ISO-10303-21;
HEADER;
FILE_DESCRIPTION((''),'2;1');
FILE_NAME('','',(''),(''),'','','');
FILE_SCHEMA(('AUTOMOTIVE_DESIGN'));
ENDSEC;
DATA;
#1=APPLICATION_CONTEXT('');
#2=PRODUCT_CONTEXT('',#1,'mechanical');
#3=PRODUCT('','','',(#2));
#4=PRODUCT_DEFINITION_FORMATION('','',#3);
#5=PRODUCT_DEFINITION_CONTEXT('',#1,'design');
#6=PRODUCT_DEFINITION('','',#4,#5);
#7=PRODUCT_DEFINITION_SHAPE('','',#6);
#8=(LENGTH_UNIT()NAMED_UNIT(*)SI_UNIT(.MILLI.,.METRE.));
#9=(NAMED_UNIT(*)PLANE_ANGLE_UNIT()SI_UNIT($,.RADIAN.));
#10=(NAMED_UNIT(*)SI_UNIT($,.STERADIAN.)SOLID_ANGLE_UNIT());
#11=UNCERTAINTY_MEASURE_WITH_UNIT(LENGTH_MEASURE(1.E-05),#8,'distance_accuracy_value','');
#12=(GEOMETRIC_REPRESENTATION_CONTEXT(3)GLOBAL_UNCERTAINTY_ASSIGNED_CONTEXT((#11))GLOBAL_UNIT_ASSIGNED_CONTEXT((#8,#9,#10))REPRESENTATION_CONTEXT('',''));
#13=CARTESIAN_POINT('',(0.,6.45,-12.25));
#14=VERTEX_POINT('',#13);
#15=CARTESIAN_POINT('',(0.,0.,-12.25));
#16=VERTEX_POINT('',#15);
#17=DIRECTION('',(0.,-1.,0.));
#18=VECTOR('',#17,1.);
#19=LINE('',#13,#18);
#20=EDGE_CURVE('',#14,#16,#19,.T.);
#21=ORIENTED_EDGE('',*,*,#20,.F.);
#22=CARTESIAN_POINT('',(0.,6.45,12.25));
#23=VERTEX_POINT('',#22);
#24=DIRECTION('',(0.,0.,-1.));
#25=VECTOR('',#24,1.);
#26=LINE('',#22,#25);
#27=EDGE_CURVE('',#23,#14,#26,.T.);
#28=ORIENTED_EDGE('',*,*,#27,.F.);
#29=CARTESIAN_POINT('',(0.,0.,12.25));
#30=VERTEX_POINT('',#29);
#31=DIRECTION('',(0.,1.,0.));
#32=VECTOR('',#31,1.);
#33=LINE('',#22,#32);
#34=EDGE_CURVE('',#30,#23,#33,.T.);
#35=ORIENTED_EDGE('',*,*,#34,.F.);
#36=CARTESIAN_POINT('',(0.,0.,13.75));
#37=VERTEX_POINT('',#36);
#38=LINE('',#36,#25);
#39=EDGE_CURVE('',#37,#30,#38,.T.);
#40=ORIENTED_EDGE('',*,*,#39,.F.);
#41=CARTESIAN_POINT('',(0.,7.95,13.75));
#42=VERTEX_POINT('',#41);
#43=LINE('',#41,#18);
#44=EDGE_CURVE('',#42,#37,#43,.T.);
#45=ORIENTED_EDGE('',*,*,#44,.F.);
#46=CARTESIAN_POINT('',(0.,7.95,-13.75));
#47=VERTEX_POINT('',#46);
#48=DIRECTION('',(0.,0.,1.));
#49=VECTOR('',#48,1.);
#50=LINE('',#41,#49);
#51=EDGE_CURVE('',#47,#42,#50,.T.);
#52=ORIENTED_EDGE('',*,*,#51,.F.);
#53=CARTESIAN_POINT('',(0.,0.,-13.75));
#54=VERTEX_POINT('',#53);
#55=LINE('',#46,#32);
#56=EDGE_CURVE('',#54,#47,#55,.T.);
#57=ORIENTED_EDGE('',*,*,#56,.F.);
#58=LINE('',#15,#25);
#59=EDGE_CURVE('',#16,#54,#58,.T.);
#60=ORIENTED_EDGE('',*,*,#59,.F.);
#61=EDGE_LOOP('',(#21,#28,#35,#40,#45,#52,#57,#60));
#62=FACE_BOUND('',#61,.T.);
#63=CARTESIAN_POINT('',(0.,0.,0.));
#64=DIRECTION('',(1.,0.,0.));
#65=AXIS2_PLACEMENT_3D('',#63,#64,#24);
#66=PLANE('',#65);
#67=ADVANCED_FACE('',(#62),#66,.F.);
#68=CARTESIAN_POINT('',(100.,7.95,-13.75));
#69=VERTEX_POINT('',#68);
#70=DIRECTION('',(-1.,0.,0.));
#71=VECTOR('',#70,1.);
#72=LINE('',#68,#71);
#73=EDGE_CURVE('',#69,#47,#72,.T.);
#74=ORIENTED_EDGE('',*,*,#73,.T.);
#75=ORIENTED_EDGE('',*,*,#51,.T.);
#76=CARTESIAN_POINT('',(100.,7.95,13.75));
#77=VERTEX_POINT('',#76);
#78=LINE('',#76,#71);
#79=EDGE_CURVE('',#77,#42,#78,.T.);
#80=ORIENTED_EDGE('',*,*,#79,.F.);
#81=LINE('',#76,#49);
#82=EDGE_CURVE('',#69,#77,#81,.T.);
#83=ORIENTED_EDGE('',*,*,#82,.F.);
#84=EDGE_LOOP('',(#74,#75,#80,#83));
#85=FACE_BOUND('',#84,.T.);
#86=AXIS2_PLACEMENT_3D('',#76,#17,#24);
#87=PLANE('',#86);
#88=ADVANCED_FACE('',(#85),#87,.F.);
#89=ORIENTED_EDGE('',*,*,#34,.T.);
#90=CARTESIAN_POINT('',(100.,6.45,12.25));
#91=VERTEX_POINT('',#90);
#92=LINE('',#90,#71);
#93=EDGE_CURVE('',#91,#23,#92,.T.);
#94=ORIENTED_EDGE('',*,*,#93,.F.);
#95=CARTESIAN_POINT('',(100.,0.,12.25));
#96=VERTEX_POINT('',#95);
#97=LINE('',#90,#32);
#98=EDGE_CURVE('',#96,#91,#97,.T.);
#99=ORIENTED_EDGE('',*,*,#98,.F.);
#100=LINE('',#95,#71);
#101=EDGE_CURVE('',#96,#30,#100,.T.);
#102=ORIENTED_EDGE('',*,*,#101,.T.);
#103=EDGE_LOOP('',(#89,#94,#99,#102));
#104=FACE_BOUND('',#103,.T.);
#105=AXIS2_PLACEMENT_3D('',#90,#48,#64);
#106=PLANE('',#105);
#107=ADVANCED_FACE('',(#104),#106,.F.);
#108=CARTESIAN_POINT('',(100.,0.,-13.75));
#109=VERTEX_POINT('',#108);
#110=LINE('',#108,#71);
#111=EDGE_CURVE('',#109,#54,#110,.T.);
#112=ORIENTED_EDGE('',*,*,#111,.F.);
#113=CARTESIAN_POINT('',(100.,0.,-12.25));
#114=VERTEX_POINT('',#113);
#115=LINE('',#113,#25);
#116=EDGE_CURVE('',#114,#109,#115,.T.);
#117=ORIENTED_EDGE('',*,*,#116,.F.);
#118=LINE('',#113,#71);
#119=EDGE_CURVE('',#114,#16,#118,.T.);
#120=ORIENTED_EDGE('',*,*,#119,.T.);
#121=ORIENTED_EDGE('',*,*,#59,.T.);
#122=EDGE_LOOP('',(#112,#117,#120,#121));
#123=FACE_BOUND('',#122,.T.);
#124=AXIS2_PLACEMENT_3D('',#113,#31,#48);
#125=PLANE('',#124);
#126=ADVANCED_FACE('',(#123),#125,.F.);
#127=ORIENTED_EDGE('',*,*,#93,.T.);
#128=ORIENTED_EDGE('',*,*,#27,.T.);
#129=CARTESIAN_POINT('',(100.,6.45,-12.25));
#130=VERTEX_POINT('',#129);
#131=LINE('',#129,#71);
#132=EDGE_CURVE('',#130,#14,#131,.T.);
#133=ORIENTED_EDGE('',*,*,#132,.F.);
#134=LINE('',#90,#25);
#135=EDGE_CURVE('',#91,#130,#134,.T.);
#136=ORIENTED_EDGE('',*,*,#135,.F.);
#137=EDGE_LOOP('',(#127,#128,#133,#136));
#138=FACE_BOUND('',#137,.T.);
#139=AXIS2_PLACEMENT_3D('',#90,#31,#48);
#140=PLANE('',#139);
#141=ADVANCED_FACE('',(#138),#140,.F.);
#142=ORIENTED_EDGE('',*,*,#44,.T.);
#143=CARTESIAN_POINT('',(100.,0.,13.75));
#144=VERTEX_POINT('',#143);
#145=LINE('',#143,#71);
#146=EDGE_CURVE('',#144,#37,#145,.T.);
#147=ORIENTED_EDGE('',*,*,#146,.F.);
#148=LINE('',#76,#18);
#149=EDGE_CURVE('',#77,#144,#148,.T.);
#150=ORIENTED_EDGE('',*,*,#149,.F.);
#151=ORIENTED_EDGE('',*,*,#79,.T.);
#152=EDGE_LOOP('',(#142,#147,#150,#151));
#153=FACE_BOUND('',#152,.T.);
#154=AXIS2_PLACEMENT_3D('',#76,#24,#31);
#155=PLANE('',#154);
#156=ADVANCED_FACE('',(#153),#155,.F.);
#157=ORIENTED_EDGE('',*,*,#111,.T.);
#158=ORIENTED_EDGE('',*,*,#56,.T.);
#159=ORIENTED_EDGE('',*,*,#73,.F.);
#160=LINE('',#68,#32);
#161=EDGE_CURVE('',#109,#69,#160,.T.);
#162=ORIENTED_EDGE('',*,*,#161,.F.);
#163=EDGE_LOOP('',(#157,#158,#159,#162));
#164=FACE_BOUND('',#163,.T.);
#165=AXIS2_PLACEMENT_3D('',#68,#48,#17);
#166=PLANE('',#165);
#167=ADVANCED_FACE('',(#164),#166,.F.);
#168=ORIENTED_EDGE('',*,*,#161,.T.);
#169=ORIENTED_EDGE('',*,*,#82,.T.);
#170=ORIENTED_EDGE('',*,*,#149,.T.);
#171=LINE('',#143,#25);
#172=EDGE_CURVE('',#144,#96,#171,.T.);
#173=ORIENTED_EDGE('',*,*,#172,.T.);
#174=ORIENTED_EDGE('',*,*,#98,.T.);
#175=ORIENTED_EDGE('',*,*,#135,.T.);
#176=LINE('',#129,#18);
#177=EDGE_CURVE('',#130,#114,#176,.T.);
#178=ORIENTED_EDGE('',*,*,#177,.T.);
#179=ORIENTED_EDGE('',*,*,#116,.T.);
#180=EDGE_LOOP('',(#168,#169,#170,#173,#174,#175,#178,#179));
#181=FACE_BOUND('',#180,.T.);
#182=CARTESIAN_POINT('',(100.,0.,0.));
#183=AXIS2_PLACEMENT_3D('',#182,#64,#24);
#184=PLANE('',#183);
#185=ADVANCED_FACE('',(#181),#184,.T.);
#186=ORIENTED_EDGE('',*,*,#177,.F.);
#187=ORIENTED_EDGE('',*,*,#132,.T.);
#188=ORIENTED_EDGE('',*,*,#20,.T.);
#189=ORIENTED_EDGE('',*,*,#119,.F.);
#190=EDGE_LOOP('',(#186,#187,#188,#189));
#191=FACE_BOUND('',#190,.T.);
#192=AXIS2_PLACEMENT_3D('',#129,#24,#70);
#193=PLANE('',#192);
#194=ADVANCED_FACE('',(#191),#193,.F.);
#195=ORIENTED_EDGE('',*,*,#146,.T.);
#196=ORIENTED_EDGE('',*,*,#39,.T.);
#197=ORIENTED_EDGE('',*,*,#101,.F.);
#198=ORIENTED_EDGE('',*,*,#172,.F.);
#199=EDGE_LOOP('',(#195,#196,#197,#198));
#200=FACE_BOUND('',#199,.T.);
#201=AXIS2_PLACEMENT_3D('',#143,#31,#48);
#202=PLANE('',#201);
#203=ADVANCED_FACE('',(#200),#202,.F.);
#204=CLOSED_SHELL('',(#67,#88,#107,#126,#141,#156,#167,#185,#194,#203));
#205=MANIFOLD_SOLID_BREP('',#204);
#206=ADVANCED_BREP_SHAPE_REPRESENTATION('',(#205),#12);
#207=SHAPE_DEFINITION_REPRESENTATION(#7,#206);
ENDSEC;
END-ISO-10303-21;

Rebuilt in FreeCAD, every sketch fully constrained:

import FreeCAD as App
import Part
import Sketcher

doc = App.newDocument("Part")
body = doc.addObject("PartDesign::Body", "Body")

# Sketch on YZ plane
sketch1 = body.newObject("Sketcher::SketchObject", "Sketch")
sketch1.AttachmentSupport = (doc.getObject("YZ_Plane"), [""])
sketch1.MapMode = "FlatFace"
sketch1.addGeometry([
    Part.LineSegment(App.Vector(8, 13.8, 0), App.Vector(0, 13.8, 0)),  # 0
    Part.LineSegment(App.Vector(0, 13.8, 0), App.Vector(0, 12.2, 0)),  # 1
    Part.LineSegment(App.Vector(0, 12.2, 0), App.Vector(6.5, 12.2, 0)),  # 2
    Part.LineSegment(App.Vector(6.5, 12.2, 0), App.Vector(6.5, -12.2, 0)),  # 3
    Part.LineSegment(App.Vector(6.5, -12.2, 0), App.Vector(0, -12.2, 0)),  # 4
    Part.LineSegment(App.Vector(0, -12.2, 0), App.Vector(0, -13.8, 0)),  # 5
    Part.LineSegment(App.Vector(0, -13.8, 0), App.Vector(8, -13.8, 0)),  # 6
    Part.LineSegment(App.Vector(8, -13.8, 0), App.Vector(8, 13.8, 0)),  # 7
], False)
sketch1.addConstraint([
    Sketcher.Constraint("Coincident", 0, 2, 1, 1),
    Sketcher.Constraint("Coincident", 1, 2, 2, 1),
    Sketcher.Constraint("Coincident", 2, 2, 3, 1),
    Sketcher.Constraint("Coincident", 3, 2, 4, 1),
    Sketcher.Constraint("Coincident", 4, 2, 5, 1),
    Sketcher.Constraint("Coincident", 5, 2, 6, 1),
    Sketcher.Constraint("Coincident", 6, 2, 7, 1),
    Sketcher.Constraint("Coincident", 7, 2, 0, 1),
    Sketcher.Constraint("Horizontal", 0),
    Sketcher.Constraint("Vertical", 1),
    Sketcher.Constraint("Horizontal", 2),
    Sketcher.Constraint("Vertical", 3),
    Sketcher.Constraint("Horizontal", 4),
    Sketcher.Constraint("Vertical", 5),
    Sketcher.Constraint("Horizontal", 6),
    Sketcher.Constraint("Vertical", 7),
    Sketcher.Constraint("Symmetric", 1, 2, 4, 2, -1, 1),
    Sketcher.Constraint("Symmetric", 0, 2, 5, 2, -1),
    Sketcher.Constraint("DistanceY", 1, 2, 1, 1, 1.5),
    Sketcher.Constraint("DistanceY", 3, 2, 3, 1, 24.5),
    Sketcher.Constraint("DistanceX", 0, 2, 0, 1, 7.95),
    Sketcher.Constraint("DistanceX", 2, 1, 2, 2, 6.45),
])
pad1 = body.newObject("PartDesign::Pad", "Pad")
pad1.Profile = sketch1
pad1.Length = 100

doc.recompute()
